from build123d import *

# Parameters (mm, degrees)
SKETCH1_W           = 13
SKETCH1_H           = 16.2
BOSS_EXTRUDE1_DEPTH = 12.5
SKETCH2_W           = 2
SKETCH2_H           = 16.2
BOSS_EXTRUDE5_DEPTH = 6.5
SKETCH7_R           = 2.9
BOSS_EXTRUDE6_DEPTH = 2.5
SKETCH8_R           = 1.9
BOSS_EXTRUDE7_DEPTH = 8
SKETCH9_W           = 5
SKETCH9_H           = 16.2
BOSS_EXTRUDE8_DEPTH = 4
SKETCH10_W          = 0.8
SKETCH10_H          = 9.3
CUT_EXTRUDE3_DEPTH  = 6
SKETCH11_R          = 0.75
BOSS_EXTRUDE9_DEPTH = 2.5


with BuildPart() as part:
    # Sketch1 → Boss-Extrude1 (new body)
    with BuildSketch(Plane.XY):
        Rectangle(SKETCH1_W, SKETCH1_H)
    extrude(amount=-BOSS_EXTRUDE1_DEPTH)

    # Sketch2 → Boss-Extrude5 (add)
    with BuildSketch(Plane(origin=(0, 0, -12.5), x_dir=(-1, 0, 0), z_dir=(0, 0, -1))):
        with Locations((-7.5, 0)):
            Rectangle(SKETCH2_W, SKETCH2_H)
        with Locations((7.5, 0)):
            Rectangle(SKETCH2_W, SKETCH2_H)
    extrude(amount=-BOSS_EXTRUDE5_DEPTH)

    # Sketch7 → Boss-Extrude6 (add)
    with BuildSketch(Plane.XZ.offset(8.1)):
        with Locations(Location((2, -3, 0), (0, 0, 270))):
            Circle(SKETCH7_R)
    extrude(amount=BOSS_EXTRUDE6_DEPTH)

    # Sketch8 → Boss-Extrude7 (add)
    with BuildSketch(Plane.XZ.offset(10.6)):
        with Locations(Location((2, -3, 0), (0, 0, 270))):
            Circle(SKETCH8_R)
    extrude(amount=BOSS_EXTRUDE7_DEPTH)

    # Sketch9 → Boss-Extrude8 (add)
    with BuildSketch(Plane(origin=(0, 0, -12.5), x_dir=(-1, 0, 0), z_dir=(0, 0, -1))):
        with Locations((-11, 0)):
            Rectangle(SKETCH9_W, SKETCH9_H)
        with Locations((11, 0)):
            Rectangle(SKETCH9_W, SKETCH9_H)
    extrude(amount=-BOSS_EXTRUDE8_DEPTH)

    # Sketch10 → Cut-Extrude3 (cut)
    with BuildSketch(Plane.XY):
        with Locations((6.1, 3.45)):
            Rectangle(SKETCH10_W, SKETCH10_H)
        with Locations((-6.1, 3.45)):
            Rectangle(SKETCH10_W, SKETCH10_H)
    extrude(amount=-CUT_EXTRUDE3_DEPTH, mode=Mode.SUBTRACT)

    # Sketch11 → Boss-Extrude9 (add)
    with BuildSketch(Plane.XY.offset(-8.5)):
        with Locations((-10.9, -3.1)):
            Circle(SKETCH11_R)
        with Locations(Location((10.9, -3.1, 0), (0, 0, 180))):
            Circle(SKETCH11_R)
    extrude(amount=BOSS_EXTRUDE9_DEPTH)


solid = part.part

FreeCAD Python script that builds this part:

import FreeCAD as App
import Part
import Sketcher
from FreeCAD import Vector
Q = App.Units.Quantity


def add_polygon(sketch, points):
    """Adds a closed chain of lines whose ends are joined by coincident constraints."""
    first, n = sketch.GeometryCount, len(points)
    for a, b in zip(points, points[1:] + points[:1]):
        sketch.addGeometry(Part.LineSegment(App.Vector(*a, 0), App.Vector(*b, 0)), False)
    for i in range(n):
        sketch.addConstraint(Sketcher.Constraint("Coincident", first + i, 2, first + (i + 1) % n, 1))

doc = App.newDocument("Part")
params = doc.addObject("Spreadsheet::Sheet", "Params")
for row, (alias, value) in enumerate([
    ("sketch1_width", "13 mm"),
    ("sketch1_height", "16.2 mm"),
    ("pad1_length", "12.5 mm"),
    ("sketch2_width", "2 mm"),
    ("sketch2_height", "16.2 mm"),
    ("pad2_length", "6.5 mm"),
    ("sketch3_diameter", "5.8 mm"),
    ("pad3_length", "2.5 mm"),
    ("sketch4_diameter", "3.8 mm"),
    ("pad4_length", "8 mm"),
    ("sketch5_width", "5 mm"),
    ("sketch5_height", "16.2 mm"),
    ("pad5_length", "4 mm"),
    ("sketch6_width", "0.8 mm"),
    ("sketch6_height", "9.3 mm"),
    ("pocket1_length", "6 mm"),
    ("sketch7_diameter", "1.5 mm"),
    ("pad6_length", "2.5 mm"),
], start=1):
    params.set(f"A{row}", alias)
    params.set(f"B{row}", "=" + value)
    params.setAlias(f"B{row}", alias)

body = doc.addObject("PartDesign::Body", "Body")

# Sketch on XY plane
sketch1 = body.newObject("Sketcher::SketchObject", "Sketch")
sketch1.AttachmentSupport = (doc.getObject("XY_Plane"), [""])
sketch1.MapMode = "FlatFace"
add_polygon(sketch1, [(-6, 8), (-6, -8), (6, -8), (6, 8)])  # lines 0-3
sketch1.addConstraint([
    Sketcher.Constraint("Vertical", 0),
    Sketcher.Constraint("Horizontal", 1),
    Sketcher.Constraint("Vertical", 2),
    Sketcher.Constraint("Horizontal", 3),
    Sketcher.Constraint("Symmetric", 0, 2, 2, 2, -1, 1),
    Sketcher.Constraint("DistanceX", 1, 1, 1, 2, Q("13 mm")),
    Sketcher.Constraint("DistanceY", 0, 2, 0, 1, Q("16.2 mm")),
])
sketch1.setExpression("Constraints[9]", "Params.sketch1_width")
sketch1.setExpression("Constraints[10]", "Params.sketch1_height")
pad1 = body.newObject("PartDesign::Pad", "Pad")
pad1.Profile = sketch1
pad1.setExpression("Length", "Params.pad1_length")
pad1.Reversed = True

# Sketch on XY plane
sketch2 = body.newObject("Sketcher::SketchObject", "Sketch001")
sketch2.AttachmentSupport = (doc.getObject("XY_Plane"), [""])
sketch2.MapMode = "FlatFace"
sketch2.AttachmentOffset = App.Placement(Vector(0, 0, -12.5), App.Rotation())
add_polygon(sketch2, [(8.5, 8.1), (8.5, -8.1), (6.5, -8.1), (6.5, 8.1)])  # lines 0-3
add_polygon(sketch2, [(-6.5, 8.1), (-6.5, -8.1), (-8.5, -8.1), (-8.5, 8.1)])  # lines 4-7
sketch2.addConstraint([
    Sketcher.Constraint("Vertical", 0),
    Sketcher.Constraint("Horizontal", 1),
    Sketcher.Constraint("Vertical", 2),
    Sketcher.Constraint("Horizontal", 3),
    Sketcher.Constraint("Vertical", 4),
    Sketcher.Constraint("Horizontal", 5),
    Sketcher.Constraint("Vertical", 6),
    Sketcher.Constraint("Horizontal", 7),
    Sketcher.Constraint("Symmetric", 2, 2, 4, 2, -1, 1),
    Sketcher.Constraint("Symmetric", 0, 2, 6, 2, -1, 1),
    Sketcher.Constraint("Horizontal", 1, 2, 4, 2),
    Sketcher.Constraint("DistanceX", 1, 2, 1, 1, Q("2 mm")),
    Sketcher.Constraint("DistanceY", 0, 2, 0, 1, Q("16.2 mm")),
    Sketcher.Constraint("DistanceX", 4, 2, 1, 2, Q("13 mm")),
])
sketch2.setExpression("Constraints[19]", "Params.sketch2_width")
sketch2.setExpression("Constraints[20]", "Params.sketch2_height")
pad2 = body.newObject("PartDesign::Pad", "Pad001")
pad2.Profile = sketch2
pad2.setExpression("Length", "Params.pad2_length")

# Sketch on XZ plane
sketch3 = body.newObject("Sketcher::SketchObject", "Sketch002")
sketch3.AttachmentSupport = (doc.getObject("XZ_Plane"), [""])
sketch3.MapMode = "FlatFace"
sketch3.AttachmentOffset = App.Placement(Vector(0, 0, 8.1), App.Rotation())
sketch3.addGeometry(Part.Circle(Vector(2, -3, 0), Vector(0, 0, 1), 2.9), False)
sketch3.addConstraint([
    Sketcher.Constraint("Diameter", 0, Q("5.8 mm")),
    Sketcher.Constraint("DistanceX", -1, 1, 0, 3, Q("2 mm")),
    Sketcher.Constraint("DistanceY", 0, 3, -1, 1, Q("3 mm")),
])
sketch3.setExpression("Constraints[0]", "Params.sketch3_diameter")
pad3 = body.newObject("PartDesign::Pad", "Pad002")
pad3.Profile = sketch3
pad3.setExpression("Length", "Params.pad3_length")

# Sketch on XZ plane
sketch4 = body.newObject("Sketcher::SketchObject", "Sketch003")
sketch4.AttachmentSupport = (doc.getObject("XZ_Plane"), [""])
sketch4.MapMode = "FlatFace"
sketch4.AttachmentOffset = App.Placement(Vector(0, 0, 10.6), App.Rotation())
sketch4.addGeometry(Part.Circle(Vector(2, -3, 0), Vector(0, 0, 1), 1.9), False)
sketch4.addConstraint([
    Sketcher.Constraint("Diameter", 0, Q("3.8 mm")),
    Sketcher.Constraint("DistanceX", -1, 1, 0, 3, Q("2 mm")),
    Sketcher.Constraint("DistanceY", 0, 3, -1, 1, Q("3 mm")),
])
sketch4.setExpression("Constraints[0]", "Params.sketch4_diameter")
pad4 = body.newObject("PartDesign::Pad", "Pad003")
pad4.Profile = sketch4
pad4.setExpression("Length", "Params.pad4_length")

# Sketch on XY plane
sketch5 = body.newObject("Sketcher::SketchObject", "Sketch004")
sketch5.AttachmentSupport = (doc.getObject("XY_Plane"), [""])
sketch5.MapMode = "FlatFace"
sketch5.AttachmentOffset = App.Placement(Vector(0, 0, -12.5), App.Rotation())
add_polygon(sketch5, [(14, 8), (14, -8), (8, -8), (8, 8)])  # lines 0-3
add_polygon(sketch5, [(-8, 8), (-8, -8), (-14, -8), (-14, 8)])  # lines 4-7
sketch5.addConstraint([
    Sketcher.Constraint("Vertical", 0),
    Sketcher.Constraint("Horizontal", 1),
    Sketcher.Constraint("Vertical", 2),
    Sketcher.Constraint("Horizontal", 3),
    Sketcher.Constraint("Vertical", 4),
    Sketcher.Constraint("Horizontal", 5),
    Sketcher.Constraint("Vertical", 6),
    Sketcher.Constraint("Horizontal", 7),
    Sketcher.Constraint("Symmetric", 2, 2, 4, 2, -1, 1),
    Sketcher.Constraint("Symmetric", 0, 2, 6, 2, -1, 1),
    Sketcher.Constraint("Horizontal", 1, 2, 4, 2),
    Sketcher.Constraint("DistanceX", 1, 2, 1, 1, Q("5 mm")),
    Sketcher.Constraint("DistanceY", 0, 2, 0, 1, Q("16.2 mm")),
    Sketcher.Constraint("DistanceX", 4, 2, 1, 2, Q("17 mm")),
])
sketch5.setExpression("Constraints[19]", "Params.sketch5_width")
sketch5.setExpression("Constraints[20]", "Params.sketch5_height")
pad5 = body.newObject("PartDesign::Pad", "Pad004")
pad5.Profile = sketch5
pad5.setExpression("Length", "Params.pad5_length")

# Sketch on XY plane
sketch6 = body.newObject("Sketcher::SketchObject", "Sketch005")
sketch6.AttachmentSupport = (doc.getObject("XY_Plane"), [""])
sketch6.MapMode = "FlatFace"
add_polygon(sketch6, [(5.7, 8.1), (5.7, -1.2), (6.5, -1.2), (6.5, 8.1)])  # lines 0-3
add_polygon(sketch6, [(-6.5, 8.1), (-6.5, -1.2), (-5.7, -1.2), (-5.7, 8.1)])  # lines 4-7
sketch6.addConstraint([
    Sketcher.Constraint("Vertical", 0),
    Sketcher.Constraint("Horizontal", 1),
    Sketcher.Constraint("Vertical", 2),
    Sketcher.Constraint("Horizontal", 3),
    Sketcher.Constraint("Vertical", 4),
    Sketcher.Constraint("Horizontal", 5),
    Sketcher.Constraint("Vertical", 6),
    Sketcher.Constraint("Horizontal", 7),
    Sketcher.Constraint("Symmetric", 1, 2, 4, 2, -2),
    Sketcher.Constraint("Symmetric", 3, 2, 6, 2, -2),
    Sketcher.Constraint("DistanceX", 1, 1, 1, 2, Q("0.8 mm")),
    Sketcher.Constraint("DistanceY", 0, 2, 0, 1, Q("9.3 mm")),
    Sketcher.Constraint("DistanceX", 4, 2, 1, 2, Q("13 mm")),
    Sketcher.Constraint("DistanceY", 0, 2, -1, 1, Q("1.2 mm")),
])
sketch6.setExpression("Constraints[18]", "Params.sketch6_width")
sketch6.setExpression("Constraints[19]", "Params.sketch6_height")
pocket1 = body.newObject("PartDesign::Pocket", "Pocket")
pocket1.Profile = sketch6
pocket1.setExpression("Length", "Params.pocket1_length")

# Sketch on XY plane
sketch7 = body.newObject("Sketcher::SketchObject", "Sketch006")
sketch7.AttachmentSupport = (doc.getObject("XY_Plane"), [""])
sketch7.MapMode = "FlatFace"
sketch7.AttachmentOffset = App.Placement(Vector(0, 0, -8.5), App.Rotation())
sketch7.addGeometry([
    Part.Circle(Vector(-10.9, -3.1, 0), Vector(0, 0, 1), 0.8),
    Part.Circle(Vector(10.9, -3.1, 0), Vector(0, 0, 1), 0.8),
], False)
sketch7.addConstraint([
    Sketcher.Constraint("Equal", 0, 1),
    Sketcher.Constraint("Symmetric", 0, 3, 1, 3, -2),
    Sketcher.Constraint("Diameter", 0, Q("1.5 mm")),
    Sketcher.Constraint("DistanceX", 0, 3, -1, 1, Q("10.9 mm")),
    Sketcher.Constraint("DistanceY", 0, 3, -1, 1, Q("3.1 mm")),
])
sketch7.setExpression("Constraints[2]", "Params.sketch7_diameter")
pad6 = body.newObject("PartDesign::Pad", "Pad005")
pad6.Profile = sketch7
pad6.setExpression("Length", "Params.pad6_length")

doc.recompute()
